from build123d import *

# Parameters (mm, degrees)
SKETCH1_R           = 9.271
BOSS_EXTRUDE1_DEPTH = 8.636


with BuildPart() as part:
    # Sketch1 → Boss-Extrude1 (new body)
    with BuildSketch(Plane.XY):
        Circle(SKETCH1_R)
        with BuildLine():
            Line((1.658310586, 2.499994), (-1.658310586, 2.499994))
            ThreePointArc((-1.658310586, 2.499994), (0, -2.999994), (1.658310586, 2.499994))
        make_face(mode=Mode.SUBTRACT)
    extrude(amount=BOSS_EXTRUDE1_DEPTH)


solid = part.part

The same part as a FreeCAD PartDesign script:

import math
import FreeCAD as App
import Part
import Sketcher
Q = App.Units.Quantity

doc = App.newDocument("Part")
params = doc.addObject("Spreadsheet::Sheet", "Params")
for row, (alias, value) in enumerate([
    ("sketch1_diameter", "0.73 in"),
    ("pad1_length", "0.34 in"),
], start=1):
    params.set(f"A{row}", alias)
    params.set(f"B{row}", "=" + value)
    params.setAlias(f"B{row}", alias)

body = doc.addObject("PartDesign::Body", "Body")

# Sketch on XY plane
sketch1 = doc.addObject("Sketcher::SketchObject", "Sketch")
body.addObject(sketch1)
sketch1.AttachmentSupport = (doc.XY_Plane, [""])
sketch1.MapMode = "FlatFace"
sketch1.addGeometry([
    Part.Circle(App.Vector(0, 0, 0), App.Vector(0, 0, 1), 9.271),
    Part.LineSegment(App.Vector(-1.658311, 2.499994, 0), App.Vector(1.658311, 2.499994, 0)),
    Part.ArcOfCircle(Part.Circle(App.Vector(0, 0, 0), App.Vector(0, 0, 1), 2.999994), math.radians(123.557344), math.radians(416.442656)),
], False)
sketch1.addConstraint([
    Sketcher.Constraint("Coincident", 1, 1, 2, 1),
    Sketcher.Constraint("Coincident", 2, 2, 1, 2),
    Sketcher.Constraint("Horizontal", 1),
    Sketcher.Constraint("Coincident", 0, 3, -1, 1),
    Sketcher.Constraint("Coincident", 2, 3, -1, 1),
    Sketcher.Constraint("Diameter", 0, Q("0.73 in")),
    Sketcher.Constraint("Radius", 2, 2.999994),
    Sketcher.Constraint("DistanceX", 1, 1, 1, 2, 3.316621),
])
sketch1.setExpression("Constraints[5]", "Params.sketch1_diameter")
pad1 = doc.addObject("PartDesign::Pad", "Pad")
body.addObject(pad1)
pad1.Profile = sketch1
pad1.setExpression("Length", "Params.pad1_length")

doc.recompute()
